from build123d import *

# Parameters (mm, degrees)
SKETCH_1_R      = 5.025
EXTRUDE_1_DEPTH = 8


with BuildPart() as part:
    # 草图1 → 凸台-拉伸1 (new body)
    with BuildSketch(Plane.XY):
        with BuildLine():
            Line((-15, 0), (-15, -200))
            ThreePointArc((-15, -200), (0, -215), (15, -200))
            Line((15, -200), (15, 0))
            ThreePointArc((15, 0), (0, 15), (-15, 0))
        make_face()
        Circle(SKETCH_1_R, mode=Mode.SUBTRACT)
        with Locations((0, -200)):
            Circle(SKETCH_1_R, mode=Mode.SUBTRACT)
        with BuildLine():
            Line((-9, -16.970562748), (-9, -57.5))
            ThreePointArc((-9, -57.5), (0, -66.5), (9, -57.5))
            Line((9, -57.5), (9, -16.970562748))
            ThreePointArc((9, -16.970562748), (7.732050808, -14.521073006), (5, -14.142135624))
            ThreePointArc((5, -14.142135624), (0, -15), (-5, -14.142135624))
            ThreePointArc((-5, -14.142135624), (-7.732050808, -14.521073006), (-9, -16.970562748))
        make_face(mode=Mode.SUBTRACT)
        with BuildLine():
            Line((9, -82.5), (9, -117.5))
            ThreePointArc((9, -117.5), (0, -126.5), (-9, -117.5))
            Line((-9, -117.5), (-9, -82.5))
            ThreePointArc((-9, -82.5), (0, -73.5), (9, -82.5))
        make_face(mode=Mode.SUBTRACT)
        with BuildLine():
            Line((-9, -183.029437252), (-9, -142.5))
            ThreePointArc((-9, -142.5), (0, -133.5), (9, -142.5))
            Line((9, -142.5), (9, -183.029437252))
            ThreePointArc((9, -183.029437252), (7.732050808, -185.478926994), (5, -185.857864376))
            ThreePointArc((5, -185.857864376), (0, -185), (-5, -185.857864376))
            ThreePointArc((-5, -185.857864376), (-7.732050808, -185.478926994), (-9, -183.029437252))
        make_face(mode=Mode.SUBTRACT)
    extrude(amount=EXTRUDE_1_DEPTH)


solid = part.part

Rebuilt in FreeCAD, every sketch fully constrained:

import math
import FreeCAD as App
import Part
import Sketcher
from FreeCAD import Vector

doc = App.newDocument("Part")
body = doc.addObject("PartDesign::Body", "Body")

# Sketch on XY plane
sketch1 = body.newObject("Sketcher::SketchObject", "Sketch")
sketch1.AttachmentSupport = (doc.getObject("XY_Plane"), [""])
sketch1.MapMode = "FlatFace"
sketch1.addGeometry(Part.LineSegment(Vector(-15, 0, 0), Vector(-15, -200, 0)), False)
sketch1.addGeometry(Part.ArcOfCircle(Part.Circle(Vector(0, -200, 0), Vector(0, 0, 1), 15), math.radians(180), math.radians(360)), False)
sketch1.addGeometry(Part.LineSegment(Vector(15, -200, 0), Vector(15, 0, 0)), False)
sketch1.addGeometry(Part.ArcOfCircle(Part.Circle(Vector(0, 0, 0), Vector(0, 0, 1), 15), math.radians(0), math.radians(180)), False)
sketch1.addGeometry(Part.Circle(Vector(0, -200, 0), Vector(0, 0, 1), 5), False)
sketch1.addGeometry(Part.ArcOfCircle(Part.Circle(Vector(-6, -183, 0), Vector(0, 0, 1), 3), math.radians(180), math.radians(289)), False)
sketch1.addGeometry(Part.LineSegment(Vector(-9, -183, 0), Vector(-9, -142.5, 0)), False)
sketch1.addGeometry(Part.ArcOfCircle(Part.Circle(Vector(0, -142.5, 0), Vector(0, 0, 1), 9), math.radians(0), math.radians(180)), False)
sketch1.addGeometry(Part.LineSegment(Vector(9, -142.5, 0), Vector(9, -183, 0)), False)
sketch1.addGeometry(Part.ArcOfCircle(Part.Circle(Vector(6, -183, 0), Vector(0, 0, 1), 3), math.radians(-109), math.radians(0)), False)
sketch1.addGeometry(Part.ArcOfCircle(Part.Circle(Vector(0, -200, 0), Vector(0, 0, 1), 15), math.radians(71), math.radians(109)), False)
sketch1.addGeometry(Part.ArcOfCircle(Part.Circle(Vector(0, -82.5, 0), Vector(0, 0, 1), 9), math.radians(0), math.radians(180)), False)
sketch1.addGeometry(Part.LineSegment(Vector(9, -82.5, 0), Vector(9, -117.5, 0)), False)
sketch1.addGeometry(Part.ArcOfCircle(Part.Circle(Vector(0, -117.5, 0), Vector(0, 0, 1), 9), math.radians(180), math.radians(360)), False)
sketch1.addGeometry(Part.LineSegment(Vector(-9, -117.5, 0), Vector(-9, -82.5, 0)), False)
sketch1.addGeometry(Part.LineSegment(Vector(-9, -57.5, 0), Vector(-9, -17, 0)), False)
sketch1.addGeometry(Part.ArcOfCircle(Part.Circle(Vector(-6, -17, 0), Vector(0, 0, 1), 3), math.radians(71), math.radians(180)), False)
sketch1.addGeometry(Part.ArcOfCircle(Part.Circle(Vector(0, 0, 0), Vector(0, 0, 1), 15), math.radians(-109), math.radians(-71)), False)
sketch1.addGeometry(Part.ArcOfCircle(Part.Circle(Vector(6, -17, 0), Vector(0, 0, 1), 3), math.radians(0), math.radians(109)), False)
sketch1.addGeometry(Part.LineSegment(Vector(9, -17, 0), Vector(9, -57.5, 0)), False)
sketch1.addGeometry(Part.ArcOfCircle(Part.Circle(Vector(0, -57.5, 0), Vector(0, 0, 1), 9), math.radians(180), math.radians(360)), False)
sketch1.addGeometry(Part.Circle(Vector(0, 0, 0), Vector(0, 0, 1), 5), False)
sketch1.addConstraint(Sketcher.Constraint("Tangent", 0, 2, 1, 1))
sketch1.addConstraint(Sketcher.Constraint("Tangent", 1, 2, 2, 1))
sketch1.addConstraint(Sketcher.Constraint("Tangent", 2, 2, 3, 1))
sketch1.addConstraint(Sketcher.Constraint("Tangent", 3, 2, 0, 1))
sketch1.addConstraint(Sketcher.Constraint("Tangent", 5, 1, 6, 1))
sketch1.addConstraint(Sketcher.Constraint("Tangent", 6, 2, 7, 2))
sketch1.addConstraint(Sketcher.Constraint("Tangent", 7, 1, 8, 1))
sketch1.addConstraint(Sketcher.Constraint("Tangent", 8, 2, 9, 2))
sketch1.addConstraint(Sketcher.Constraint("Tangent", 9, 1, 10, 1))
sketch1.addConstraint(Sketcher.Constraint("Tangent", 10, 2, 5, 2))
sketch1.addConstraint(Sketcher.Constraint("Tangent", 11, 1, 12, 1))
sketch1.addConstraint(Sketcher.Constraint("Tangent", 12, 2, 13, 2))
sketch1.addConstraint(Sketcher.Constraint("Tangent", 13, 1, 14, 1))
sketch1.addConstraint(Sketcher.Constraint("Tangent", 14, 2, 11, 2))
sketch1.addConstraint(Sketcher.Constraint("Tangent", 15, 2, 16, 2))
sketch1.addConstraint(Sketcher.Constraint("Tangent", 16, 1, 17, 1))
sketch1.addConstraint(Sketcher.Constraint("Tangent", 17, 2, 18, 2))
sketch1.addConstraint(Sketcher.Constraint("Tangent", 18, 1, 19, 1))
sketch1.addConstraint(Sketcher.Constraint("Tangent", 19, 2, 20, 2))
sketch1.addConstraint(Sketcher.Constraint("Tangent", 20, 1, 15, 1))
sketch1.addConstraint(Sketcher.Constraint("Vertical", 0))
sketch1.addConstraint(Sketcher.Constraint("Vertical", 2))
sketch1.addConstraint(Sketcher.Constraint("Vertical", 6))
sketch1.addConstraint(Sketcher.Constraint("Vertical", 8))
sketch1.addConstraint(Sketcher.Constraint("Vertical", 12))
sketch1.addConstraint(Sketcher.Constraint("Vertical", 14))
sketch1.addConstraint(Sketcher.Constraint("Vertical", 15))
sketch1.addConstraint(Sketcher.Constraint("Vertical", 19))
sketch1.addConstraint(Sketcher.Constraint("Coincident", 3, 3, -1, 1))
sketch1.addConstraint(Sketcher.Constraint("Coincident", 17, 3, -1, 1))
sketch1.addConstraint(Sketcher.Constraint("Coincident", 21, 3, -1, 1))
sketch1.addConstraint(Sketcher.Constraint("Coincident", 4, 3, 1, 3))
sketch1.addConstraint(Sketcher.Constraint("Coincident", 10, 3, 1, 3))
sketch1.addConstraint(Sketcher.Constraint("Equal", 5, 9))
sketch1.addConstraint(Sketcher.Constraint("Equal", 3, 10))
sketch1.addConstraint(Sketcher.Constraint("Equal", 7, 11))
sketch1.addConstraint(Sketcher.Constraint("Equal", 9, 16))
sketch1.addConstraint(Sketcher.Constraint("Equal", 10, 17))
sketch1.addConstraint(Sketcher.Constraint("Equal", 16, 18))
sketch1.addConstraint(Sketcher.Constraint("Equal", 13, 20))
sketch1.addConstraint(Sketcher.Constraint("Equal", 4, 21))
sketch1.addConstraint(Sketcher.Constraint("PointOnObject", 7, 3, -2))
sketch1.addConstraint(Sketcher.Constraint("PointOnObject", 11, 3, -2))
sketch1.addConstraint(Sketcher.Constraint("PointOnObject", 20, 3, -2))
sketch1.addConstraint(Sketcher.Constraint("Equal", 8, 15))
sketch1.addConstraint(Sketcher.Constraint("Radius", 1, 15.0))
sketch1.addConstraint(Sketcher.Constraint("Radius", 5, 3.0))
sketch1.addConstraint(Sketcher.Constraint("Radius", 7, 9.0))
sketch1.addConstraint(Sketcher.Constraint("Diameter", 4, 10.05))
sketch1.addConstraint(Sketcher.Constraint("DistanceY", 0, 2, 0, 1, 200.0))
sketch1.addConstraint(Sketcher.Constraint("DistanceY", 12, 2, 12, 1, 35.0))
sketch1.addConstraint(Sketcher.Constraint("DistanceY", 7, 3, 11, 3, 60.0))
sketch1.addConstraint(Sketcher.Constraint("DistanceY", 11, 3, 20, 3, 25.0))
pad1 = body.newObject("PartDesign::Pad", "Pad")
pad1.Profile = sketch1
pad1.Length = 8

doc.recompute()
